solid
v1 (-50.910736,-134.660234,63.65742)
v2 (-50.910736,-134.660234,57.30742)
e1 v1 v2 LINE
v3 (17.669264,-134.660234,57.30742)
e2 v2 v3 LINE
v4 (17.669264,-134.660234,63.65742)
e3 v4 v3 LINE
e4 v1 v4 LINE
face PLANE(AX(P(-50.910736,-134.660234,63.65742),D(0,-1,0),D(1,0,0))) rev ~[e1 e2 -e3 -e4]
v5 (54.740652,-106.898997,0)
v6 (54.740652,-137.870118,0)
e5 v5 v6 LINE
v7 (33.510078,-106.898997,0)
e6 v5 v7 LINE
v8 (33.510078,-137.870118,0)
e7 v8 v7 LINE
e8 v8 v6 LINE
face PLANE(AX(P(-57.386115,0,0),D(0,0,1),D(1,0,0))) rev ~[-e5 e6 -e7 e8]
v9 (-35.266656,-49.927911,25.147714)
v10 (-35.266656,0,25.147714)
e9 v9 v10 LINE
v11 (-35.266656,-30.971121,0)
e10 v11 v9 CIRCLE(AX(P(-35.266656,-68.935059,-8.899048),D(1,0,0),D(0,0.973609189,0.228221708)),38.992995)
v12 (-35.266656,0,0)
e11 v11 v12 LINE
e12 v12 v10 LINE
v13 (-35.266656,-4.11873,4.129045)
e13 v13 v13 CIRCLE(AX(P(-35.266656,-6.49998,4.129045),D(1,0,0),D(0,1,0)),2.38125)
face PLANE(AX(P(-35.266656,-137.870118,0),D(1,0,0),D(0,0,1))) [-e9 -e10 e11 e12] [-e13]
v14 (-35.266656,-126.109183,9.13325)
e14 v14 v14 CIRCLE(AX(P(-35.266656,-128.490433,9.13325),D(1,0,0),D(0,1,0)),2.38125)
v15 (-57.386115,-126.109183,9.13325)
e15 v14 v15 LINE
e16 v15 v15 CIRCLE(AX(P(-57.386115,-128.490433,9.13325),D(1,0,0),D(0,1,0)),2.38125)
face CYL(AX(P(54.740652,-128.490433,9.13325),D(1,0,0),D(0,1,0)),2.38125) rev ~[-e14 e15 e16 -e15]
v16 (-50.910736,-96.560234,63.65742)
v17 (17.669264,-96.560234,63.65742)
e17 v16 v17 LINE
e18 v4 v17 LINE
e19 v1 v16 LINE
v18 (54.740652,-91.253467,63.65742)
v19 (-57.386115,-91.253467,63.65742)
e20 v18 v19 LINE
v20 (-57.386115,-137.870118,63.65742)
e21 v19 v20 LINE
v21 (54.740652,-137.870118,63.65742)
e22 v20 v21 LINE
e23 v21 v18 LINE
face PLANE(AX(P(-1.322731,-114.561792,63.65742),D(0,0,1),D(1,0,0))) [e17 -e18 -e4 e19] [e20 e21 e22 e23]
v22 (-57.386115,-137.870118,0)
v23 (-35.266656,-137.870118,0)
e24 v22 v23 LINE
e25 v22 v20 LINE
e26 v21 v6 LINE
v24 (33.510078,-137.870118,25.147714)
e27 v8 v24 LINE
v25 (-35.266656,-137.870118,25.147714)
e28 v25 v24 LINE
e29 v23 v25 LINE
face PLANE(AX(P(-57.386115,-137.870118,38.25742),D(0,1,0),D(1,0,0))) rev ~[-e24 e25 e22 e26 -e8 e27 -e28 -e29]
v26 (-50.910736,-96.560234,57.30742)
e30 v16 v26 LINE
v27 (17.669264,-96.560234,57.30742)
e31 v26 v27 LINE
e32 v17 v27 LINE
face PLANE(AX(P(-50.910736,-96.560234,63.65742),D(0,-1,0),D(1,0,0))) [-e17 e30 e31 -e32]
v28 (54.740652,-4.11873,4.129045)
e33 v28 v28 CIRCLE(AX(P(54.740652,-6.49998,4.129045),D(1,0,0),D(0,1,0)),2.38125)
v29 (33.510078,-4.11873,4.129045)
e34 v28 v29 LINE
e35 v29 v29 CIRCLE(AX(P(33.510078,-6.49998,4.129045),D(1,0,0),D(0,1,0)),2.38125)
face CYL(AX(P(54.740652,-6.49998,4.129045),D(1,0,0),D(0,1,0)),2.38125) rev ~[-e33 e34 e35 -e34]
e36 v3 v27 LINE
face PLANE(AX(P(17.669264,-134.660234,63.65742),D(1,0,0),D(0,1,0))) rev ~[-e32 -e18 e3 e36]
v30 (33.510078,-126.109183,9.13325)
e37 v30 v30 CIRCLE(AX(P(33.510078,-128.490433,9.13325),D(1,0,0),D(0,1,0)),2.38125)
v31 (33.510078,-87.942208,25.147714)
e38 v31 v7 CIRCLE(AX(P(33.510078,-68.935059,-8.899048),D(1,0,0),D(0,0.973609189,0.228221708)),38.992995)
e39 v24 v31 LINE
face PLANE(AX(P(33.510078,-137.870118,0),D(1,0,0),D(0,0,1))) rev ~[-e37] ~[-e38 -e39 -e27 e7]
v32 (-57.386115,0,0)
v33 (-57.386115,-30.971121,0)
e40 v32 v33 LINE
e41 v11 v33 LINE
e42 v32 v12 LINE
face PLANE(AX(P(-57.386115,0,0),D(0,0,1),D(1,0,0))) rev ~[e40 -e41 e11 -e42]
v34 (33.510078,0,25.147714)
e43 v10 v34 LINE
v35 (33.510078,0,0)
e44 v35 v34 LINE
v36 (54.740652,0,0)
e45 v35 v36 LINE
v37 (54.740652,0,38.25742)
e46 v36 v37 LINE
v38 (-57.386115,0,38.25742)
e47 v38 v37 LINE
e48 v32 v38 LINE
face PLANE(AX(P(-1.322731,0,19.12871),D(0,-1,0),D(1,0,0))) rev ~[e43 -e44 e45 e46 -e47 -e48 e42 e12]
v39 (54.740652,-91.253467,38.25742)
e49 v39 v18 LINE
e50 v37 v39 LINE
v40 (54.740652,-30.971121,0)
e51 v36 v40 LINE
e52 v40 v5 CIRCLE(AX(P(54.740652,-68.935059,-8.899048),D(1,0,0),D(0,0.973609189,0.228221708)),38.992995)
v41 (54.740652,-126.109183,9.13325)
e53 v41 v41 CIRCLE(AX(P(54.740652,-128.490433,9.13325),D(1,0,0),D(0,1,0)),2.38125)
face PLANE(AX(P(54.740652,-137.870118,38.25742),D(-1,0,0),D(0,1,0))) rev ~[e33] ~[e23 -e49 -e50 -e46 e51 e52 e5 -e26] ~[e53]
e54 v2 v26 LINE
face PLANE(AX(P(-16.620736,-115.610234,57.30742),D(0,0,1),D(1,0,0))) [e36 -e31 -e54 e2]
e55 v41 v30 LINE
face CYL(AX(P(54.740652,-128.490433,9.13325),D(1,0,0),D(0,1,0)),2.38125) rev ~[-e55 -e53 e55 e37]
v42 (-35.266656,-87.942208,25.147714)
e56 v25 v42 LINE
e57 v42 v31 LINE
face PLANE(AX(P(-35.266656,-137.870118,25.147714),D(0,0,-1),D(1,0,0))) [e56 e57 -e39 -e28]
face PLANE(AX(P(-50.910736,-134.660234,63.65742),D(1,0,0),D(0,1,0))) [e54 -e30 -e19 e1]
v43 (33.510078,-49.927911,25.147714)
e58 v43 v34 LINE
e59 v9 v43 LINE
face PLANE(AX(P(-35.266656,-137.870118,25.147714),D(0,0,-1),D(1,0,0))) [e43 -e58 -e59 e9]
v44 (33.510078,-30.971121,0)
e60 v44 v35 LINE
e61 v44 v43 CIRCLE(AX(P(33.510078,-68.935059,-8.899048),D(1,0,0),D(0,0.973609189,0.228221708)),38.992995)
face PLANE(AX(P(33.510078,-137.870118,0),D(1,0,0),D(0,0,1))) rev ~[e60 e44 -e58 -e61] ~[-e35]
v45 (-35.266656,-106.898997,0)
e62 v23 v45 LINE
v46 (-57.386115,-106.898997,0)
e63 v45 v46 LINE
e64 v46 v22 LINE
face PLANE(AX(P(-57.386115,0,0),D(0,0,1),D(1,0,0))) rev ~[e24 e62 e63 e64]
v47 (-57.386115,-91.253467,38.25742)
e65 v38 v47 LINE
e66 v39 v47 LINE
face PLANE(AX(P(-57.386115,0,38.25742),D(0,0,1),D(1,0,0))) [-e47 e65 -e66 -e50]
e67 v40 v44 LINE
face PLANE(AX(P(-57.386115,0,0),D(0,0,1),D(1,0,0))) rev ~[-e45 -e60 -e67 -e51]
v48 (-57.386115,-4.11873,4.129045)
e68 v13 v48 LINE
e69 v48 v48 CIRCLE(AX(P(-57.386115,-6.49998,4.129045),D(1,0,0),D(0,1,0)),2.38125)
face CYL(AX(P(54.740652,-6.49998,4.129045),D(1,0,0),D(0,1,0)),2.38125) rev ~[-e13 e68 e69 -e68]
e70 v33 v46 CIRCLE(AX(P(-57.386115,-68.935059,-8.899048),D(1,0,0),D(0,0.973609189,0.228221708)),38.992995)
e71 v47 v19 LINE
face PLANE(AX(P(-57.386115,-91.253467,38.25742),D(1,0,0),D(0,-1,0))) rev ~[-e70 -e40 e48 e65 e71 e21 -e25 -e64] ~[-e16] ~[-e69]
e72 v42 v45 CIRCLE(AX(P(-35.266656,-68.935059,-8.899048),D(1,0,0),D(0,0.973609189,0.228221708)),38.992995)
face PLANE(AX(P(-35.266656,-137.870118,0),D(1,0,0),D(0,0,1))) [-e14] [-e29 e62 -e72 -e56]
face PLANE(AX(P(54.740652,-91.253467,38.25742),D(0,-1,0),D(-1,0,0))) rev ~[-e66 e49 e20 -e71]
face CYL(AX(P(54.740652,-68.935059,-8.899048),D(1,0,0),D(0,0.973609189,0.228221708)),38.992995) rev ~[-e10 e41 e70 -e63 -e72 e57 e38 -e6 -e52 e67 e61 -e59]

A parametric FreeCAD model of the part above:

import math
import FreeCAD as App
import Part
import Sketcher
from FreeCAD import Vector
Q = App.Units.Quantity


def add_polygon(sketch, points):
    """Adds a closed chain of lines whose ends are joined by coincident constraints."""
    first, n = sketch.GeometryCount, len(points)
    for a, b in zip(points, points[1:] + points[:1]):
        sketch.addGeometry(Part.LineSegment(App.Vector(*a, 0), App.Vector(*b, 0)), False)
    for i in range(n):
        sketch.addConstraint(Sketcher.Constraint("Coincident", first + i, 2, first + (i + 1) % n, 1))

doc = App.newDocument("Part")
params = doc.addObject("Spreadsheet::Sheet", "Params")
for row, (alias, value) in enumerate([
    ("pad1_length", "137.870118 mm"),
    ("sketch3_diameter", "0.1875 in"),
    ("sketch4_diameter", "0.1875 in"),
    ("pad2_length", "1 in"),
    ("sketch7_width", "2.7 in"),
    ("sketch7_height", "1.5 in"),
    ("pocket5_length", "0.25 in"),
], start=1):
    params.set(f"A{row}", alias)
    params.set(f"B{row}", "=" + value)
    params.setAlias(f"B{row}", alias)

body = doc.addObject("PartDesign::Body", "Body")

# Sketch on XZ plane
sketch1 = body.newObject("Sketcher::SketchObject", "Sketch")
sketch1.AttachmentSupport = (doc.getObject("XZ_Plane"), [""])
sketch1.MapMode = "FlatFace"
add_polygon(sketch1, [(-57.386115, 38.25742), (-57.386115, 0), (54.740652, 0), (54.740652, 38.25742)])  # lines 0-3
sketch1.addConstraint(Sketcher.Constraint("Vertical", 0))
sketch1.addConstraint(Sketcher.Constraint("Horizontal", 1))
sketch1.addConstraint(Sketcher.Constraint("Vertical", 2))
sketch1.addConstraint(Sketcher.Constraint("Horizontal", 3))
sketch1.addConstraint(Sketcher.Constraint("PointOnObject", 0, 2, -1))
sketch1.addConstraint(Sketcher.Constraint("DistanceY", 0, 2, 0, 1, 38.25742))
sketch1.addConstraint(Sketcher.Constraint("DistanceX", 1, 1, 1, 2, 112.126768))
sketch1.addConstraint(Sketcher.Constraint("DistanceX", 0, 2, -1, 1, 57.386115))
pad1 = body.newObject("PartDesign::Pad", "Pad")
pad1.Profile = sketch1
pad1.setExpression("Length", "Params.pad1_length")

# Sketch on XZ plane
sketch2 = body.newObject("Sketcher::SketchObject", "Sketch001")
sketch2.AttachmentSupport = (doc.getObject("XZ_Plane"), [""])
sketch2.MapMode = "FlatFace"
sketch2.AttachmentOffset = App.Placement(Vector(0, 0, 137.870118), App.Rotation())
add_polygon(sketch2, [(-35.266656, 25.147714), (-35.266656, 0), (33.510078, 0), (33.510078, 25.147714)])  # lines 0-3
sketch2.addConstraint(Sketcher.Constraint("Vertical", 0))
sketch2.addConstraint(Sketcher.Constraint("Horizontal", 1))
sketch2.addConstraint(Sketcher.Constraint("Vertical", 2))
sketch2.addConstraint(Sketcher.Constraint("Horizontal", 3))
sketch2.addConstraint(Sketcher.Constraint("PointOnObject", 0, 2, -1))
sketch2.addConstraint(Sketcher.Constraint("DistanceX", 1, 1, 1, 2, 68.776734))
sketch2.addConstraint(Sketcher.Constraint("DistanceY", 0, 2, 0, 1, 25.147714))
sketch2.addConstraint(Sketcher.Constraint("DistanceX", 0, 2, -1, 1, 35.266656))
pocket1 = body.newObject("PartDesign::Pocket", "Pocket")
pocket1.Profile = sketch2
pocket1.Type = "ThroughAll"

# Sketch on YZ plane
sketch3 = body.newObject("Sketcher::SketchObject", "Sketch002")
sketch3.AttachmentSupport = (doc.getObject("YZ_Plane"), [""])
sketch3.MapMode = "FlatFace"
sketch3.AttachmentOffset = App.Placement(Vector(0, 0, 54.740652), App.Rotation())
sketch3.addGeometry(Part.Circle(Vector(-128.490433, 9.13325, 0), Vector(0, 0, 1), 2.38125), False)
sketch3.addConstraint(Sketcher.Constraint("Diameter", 0, Q("0.1875 in")))
sketch3.addConstraint(Sketcher.Constraint("DistanceY", -1, 1, 0, 3, 9.13325))
sketch3.addConstraint(Sketcher.Constraint("DistanceX", 0, 3, -1, 1, 128.490433))
sketch3.setExpression("Constraints[0]", "Params.sketch3_diameter")
pocket2 = body.newObject("PartDesign::Pocket", "Pocket001")
pocket2.Profile = sketch3
pocket2.Type = "ThroughAll"

# Sketch on YZ plane
sketch4 = body.newObject("Sketcher::SketchObject", "Sketch003")
sketch4.AttachmentSupport = (doc.getObject("YZ_Plane"), [""])
sketch4.MapMode = "FlatFace"
sketch4.AttachmentOffset = App.Placement(Vector(0, 0, 54.740652), App.Rotation())
sketch4.addGeometry(Part.Circle(Vector(-6.49998, 4.129045, 0), Vector(0, 0, 1), 2.38125), False)
sketch4.addConstraint(Sketcher.Constraint("Diameter", 0, Q("0.1875 in")))
sketch4.addConstraint(Sketcher.Constraint("DistanceX", 0, 3, -1, 1, 6.49998))
sketch4.addConstraint(Sketcher.Constraint("DistanceY", -1, 1, 0, 3, 4.129045))
sketch4.setExpression("Constraints[0]", "Params.sketch4_diameter")
pocket3 = body.newObject("PartDesign::Pocket", "Pocket002")
pocket3.Profile = sketch4
pocket3.Type = "ThroughAll"

# Sketch on YZ plane
sketch5 = body.newObject("Sketcher::SketchObject", "Sketch004")
sketch5.AttachmentSupport = (doc.getObject("YZ_Plane"), [""])
sketch5.MapMode = "FlatFace"
sketch5.AttachmentOffset = App.Placement(Vector(0, 0, 54.740652), App.Rotation())
sketch5.addGeometry(Part.LineSegment(Vector(-106.898997, 0, 0), Vector(-30.971121, 0, 0)), False)
sketch5.addGeometry(Part.ArcOfCircle(Part.Circle(Vector(-68.935059, -8.899048, 0), Vector(0, 0, 1), 38.992995), math.radians(13.192399), math.radians(166.807601)), False)
sketch5.addConstraint(Sketcher.Constraint("Coincident", 0, 1, 1, 2))
sketch5.addConstraint(Sketcher.Constraint("Coincident", 1, 1, 0, 2))
sketch5.addConstraint(Sketcher.Constraint("Horizontal", 0))
sketch5.addConstraint(Sketcher.Constraint("PointOnObject", 0, 1, -1))
sketch5.addConstraint(Sketcher.Constraint("Radius", 1, 38.992995))
sketch5.addConstraint(Sketcher.Constraint("DistanceX", 0, 1, 0, 2, 75.927877))
sketch5.addConstraint(Sketcher.Constraint("DistanceX", 1, 3, -1, 1, 68.935059))
pocket4 = body.newObject("PartDesign::Pocket", "Pocket003")
pocket4.Profile = sketch5
pocket4.Type = "ThroughAll"

# Sketch on XY plane
sketch6 = body.newObject("Sketcher::SketchObject", "Sketch005")
sketch6.AttachmentSupport = (doc.getObject("XY_Plane"), [""])
sketch6.MapMode = "FlatFace"
sketch6.AttachmentOffset = App.Placement(Vector(0, 0, 38.25742), App.Rotation())
add_polygon(sketch6, [(54.740652, -91.253467), (-57.386115, -91.253467), (-57.386115, -137.870118), (54.740652, -137.870118)])  # lines 0-3
sketch6.addConstraint(Sketcher.Constraint("Horizontal", 0))
sketch6.addConstraint(Sketcher.Constraint("Vertical", 1))
sketch6.addConstraint(Sketcher.Constraint("Horizontal", 2))
sketch6.addConstraint(Sketcher.Constraint("Vertical", 3))
sketch6.addConstraint(Sketcher.Constraint("DistanceY", 1, 2, 1, 1, 46.616651))
sketch6.addConstraint(Sketcher.Constraint("DistanceX", 0, 2, 0, 1, 112.126768))
sketch6.addConstraint(Sketcher.Constraint("DistanceY", 1, 2, -1, 1, 137.870118))
sketch6.addConstraint(Sketcher.Constraint("DistanceX", 0, 2, -1, 1, 57.386115))
pad2 = body.newObject("PartDesign::Pad", "Pad001")
pad2.Profile = sketch6
pad2.setExpression("Length", "Params.pad2_length")

# Sketch on XY plane
sketch7 = body.newObject("Sketcher::SketchObject", "Sketch006")
sketch7.AttachmentSupport = (doc.getObject("XY_Plane"), [""])
sketch7.MapMode = "FlatFace"
sketch7.AttachmentOffset = App.Placement(Vector(0, 0, 63.65742), App.Rotation())
add_polygon(sketch7, [(-50.910736, -96.560234), (-50.910736, -134.660234), (17.669264, -134.660234), (17.669264, -96.560234)])  # lines 0-3
sketch7.addConstraint(Sketcher.Constraint("Vertical", 0))
sketch7.addConstraint(Sketcher.Constraint("Horizontal", 1))
sketch7.addConstraint(Sketcher.Constraint("Vertical", 2))
sketch7.addConstraint(Sketcher.Constraint("Horizontal", 3))
sketch7.addConstraint(Sketcher.Constraint("DistanceX", 1, 1, 1, 2, Q("2.7 in")))
sketch7.addConstraint(Sketcher.Constraint("DistanceY", 0, 2, 0, 1, Q("1.5 in")))
sketch7.addConstraint(Sketcher.Constraint("DistanceX", 0, 2, -1, 1, 50.910736))
sketch7.addConstraint(Sketcher.Constraint("DistanceY", 0, 2, -1, 1, 134.660234))
sketch7.setExpression("Constraints[8]", "Params.sketch7_width")
sketch7.setExpression("Constraints[9]", "Params.sketch7_height")
pocket5 = body.newObject("PartDesign::Pocket", "Pocket004")
pocket5.Profile = sketch7
pocket5.setExpression("Length", "Params.pocket5_length")

doc.recompute()
